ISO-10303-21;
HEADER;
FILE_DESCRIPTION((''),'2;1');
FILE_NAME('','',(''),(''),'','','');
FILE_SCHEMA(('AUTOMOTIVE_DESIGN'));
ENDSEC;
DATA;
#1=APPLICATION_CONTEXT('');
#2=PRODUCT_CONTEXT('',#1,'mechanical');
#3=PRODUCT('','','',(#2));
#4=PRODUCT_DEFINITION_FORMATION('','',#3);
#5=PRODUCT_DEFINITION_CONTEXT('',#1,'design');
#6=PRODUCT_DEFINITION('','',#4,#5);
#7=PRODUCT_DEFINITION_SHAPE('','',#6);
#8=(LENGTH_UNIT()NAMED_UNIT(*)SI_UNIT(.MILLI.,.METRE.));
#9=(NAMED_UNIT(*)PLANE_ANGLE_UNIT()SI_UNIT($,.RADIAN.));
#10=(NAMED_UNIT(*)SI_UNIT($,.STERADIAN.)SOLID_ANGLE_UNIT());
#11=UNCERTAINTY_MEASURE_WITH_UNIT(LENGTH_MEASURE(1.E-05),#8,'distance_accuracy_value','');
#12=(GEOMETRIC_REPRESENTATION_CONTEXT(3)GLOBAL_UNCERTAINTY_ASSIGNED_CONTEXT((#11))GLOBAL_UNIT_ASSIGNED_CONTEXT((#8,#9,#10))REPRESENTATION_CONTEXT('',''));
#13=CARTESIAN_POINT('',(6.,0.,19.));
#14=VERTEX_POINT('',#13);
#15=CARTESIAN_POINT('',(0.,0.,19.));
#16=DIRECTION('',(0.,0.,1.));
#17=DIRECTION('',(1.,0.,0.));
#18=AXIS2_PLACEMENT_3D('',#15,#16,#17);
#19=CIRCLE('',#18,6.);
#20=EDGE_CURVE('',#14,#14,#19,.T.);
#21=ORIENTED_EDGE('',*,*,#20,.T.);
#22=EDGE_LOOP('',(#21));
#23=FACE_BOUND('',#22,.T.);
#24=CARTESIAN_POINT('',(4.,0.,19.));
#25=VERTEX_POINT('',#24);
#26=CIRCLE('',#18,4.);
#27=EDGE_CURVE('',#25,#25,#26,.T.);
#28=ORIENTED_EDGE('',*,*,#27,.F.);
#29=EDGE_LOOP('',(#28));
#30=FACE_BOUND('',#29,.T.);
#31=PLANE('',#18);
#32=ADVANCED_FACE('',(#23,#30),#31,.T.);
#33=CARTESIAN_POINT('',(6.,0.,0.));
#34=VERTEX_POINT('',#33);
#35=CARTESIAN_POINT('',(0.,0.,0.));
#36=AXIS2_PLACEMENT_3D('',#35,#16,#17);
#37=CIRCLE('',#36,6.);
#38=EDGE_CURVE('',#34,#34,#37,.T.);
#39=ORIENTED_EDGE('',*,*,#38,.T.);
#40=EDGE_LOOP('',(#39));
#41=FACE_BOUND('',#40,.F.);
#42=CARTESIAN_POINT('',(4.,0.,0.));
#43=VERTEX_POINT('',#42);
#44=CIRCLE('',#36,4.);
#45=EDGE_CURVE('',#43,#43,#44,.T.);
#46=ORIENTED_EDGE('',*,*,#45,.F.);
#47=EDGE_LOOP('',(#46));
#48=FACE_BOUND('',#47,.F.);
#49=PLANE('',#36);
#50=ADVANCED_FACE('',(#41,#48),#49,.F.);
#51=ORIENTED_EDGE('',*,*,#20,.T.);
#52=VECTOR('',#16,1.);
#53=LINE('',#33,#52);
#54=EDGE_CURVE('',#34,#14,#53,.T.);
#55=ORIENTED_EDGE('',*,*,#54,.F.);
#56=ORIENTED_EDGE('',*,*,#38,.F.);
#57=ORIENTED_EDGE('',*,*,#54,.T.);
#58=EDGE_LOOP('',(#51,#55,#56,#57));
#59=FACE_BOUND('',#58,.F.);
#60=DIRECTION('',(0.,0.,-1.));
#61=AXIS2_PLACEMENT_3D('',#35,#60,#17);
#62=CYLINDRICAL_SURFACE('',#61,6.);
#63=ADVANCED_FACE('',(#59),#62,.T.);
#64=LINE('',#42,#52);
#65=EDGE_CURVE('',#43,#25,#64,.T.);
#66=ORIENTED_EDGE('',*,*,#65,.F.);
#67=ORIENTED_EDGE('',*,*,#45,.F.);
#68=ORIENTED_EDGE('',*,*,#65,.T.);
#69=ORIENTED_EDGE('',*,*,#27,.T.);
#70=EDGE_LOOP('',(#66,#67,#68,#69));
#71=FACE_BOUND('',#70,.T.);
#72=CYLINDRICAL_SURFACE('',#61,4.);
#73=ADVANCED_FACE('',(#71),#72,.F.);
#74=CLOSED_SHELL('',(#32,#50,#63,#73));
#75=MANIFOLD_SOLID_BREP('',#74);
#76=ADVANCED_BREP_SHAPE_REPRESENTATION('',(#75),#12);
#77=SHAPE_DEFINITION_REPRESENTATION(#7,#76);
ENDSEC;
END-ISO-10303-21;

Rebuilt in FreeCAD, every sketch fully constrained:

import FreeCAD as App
import Part
import Sketcher
from FreeCAD import Vector

doc = App.newDocument("Part")
body = doc.addObject("PartDesign::Body", "Body")

sketch1 = body.newObject("Sketcher::SketchObject", "Sketch")
sketch1.AttachmentSupport = (doc.getObject("XY_Plane"), [""])
sketch1.MapMode = "FlatFace"
sketch1.addGeometry(Part.Circle(Vector(0, 0, 0), Vector(0, 0, 1), 6), False)
sketch1.addGeometry(Part.Circle(Vector(0, 0, 0), Vector(0, 0, 1), 4), False)
sketch1.addConstraint(Sketcher.Constraint("Coincident", 0, 3, -1, 1))
sketch1.addConstraint(Sketcher.Constraint("Coincident", 1, 3, -1, 1))
sketch1.addConstraint(Sketcher.Constraint("Diameter", 0, 12.0))
sketch1.addConstraint(Sketcher.Constraint("Diameter", 1, 8.0))
pad1 = body.newObject("PartDesign::Pad", "Pad")
pad1.Profile = sketch1
pad1.Length = 19

doc.recompute()
